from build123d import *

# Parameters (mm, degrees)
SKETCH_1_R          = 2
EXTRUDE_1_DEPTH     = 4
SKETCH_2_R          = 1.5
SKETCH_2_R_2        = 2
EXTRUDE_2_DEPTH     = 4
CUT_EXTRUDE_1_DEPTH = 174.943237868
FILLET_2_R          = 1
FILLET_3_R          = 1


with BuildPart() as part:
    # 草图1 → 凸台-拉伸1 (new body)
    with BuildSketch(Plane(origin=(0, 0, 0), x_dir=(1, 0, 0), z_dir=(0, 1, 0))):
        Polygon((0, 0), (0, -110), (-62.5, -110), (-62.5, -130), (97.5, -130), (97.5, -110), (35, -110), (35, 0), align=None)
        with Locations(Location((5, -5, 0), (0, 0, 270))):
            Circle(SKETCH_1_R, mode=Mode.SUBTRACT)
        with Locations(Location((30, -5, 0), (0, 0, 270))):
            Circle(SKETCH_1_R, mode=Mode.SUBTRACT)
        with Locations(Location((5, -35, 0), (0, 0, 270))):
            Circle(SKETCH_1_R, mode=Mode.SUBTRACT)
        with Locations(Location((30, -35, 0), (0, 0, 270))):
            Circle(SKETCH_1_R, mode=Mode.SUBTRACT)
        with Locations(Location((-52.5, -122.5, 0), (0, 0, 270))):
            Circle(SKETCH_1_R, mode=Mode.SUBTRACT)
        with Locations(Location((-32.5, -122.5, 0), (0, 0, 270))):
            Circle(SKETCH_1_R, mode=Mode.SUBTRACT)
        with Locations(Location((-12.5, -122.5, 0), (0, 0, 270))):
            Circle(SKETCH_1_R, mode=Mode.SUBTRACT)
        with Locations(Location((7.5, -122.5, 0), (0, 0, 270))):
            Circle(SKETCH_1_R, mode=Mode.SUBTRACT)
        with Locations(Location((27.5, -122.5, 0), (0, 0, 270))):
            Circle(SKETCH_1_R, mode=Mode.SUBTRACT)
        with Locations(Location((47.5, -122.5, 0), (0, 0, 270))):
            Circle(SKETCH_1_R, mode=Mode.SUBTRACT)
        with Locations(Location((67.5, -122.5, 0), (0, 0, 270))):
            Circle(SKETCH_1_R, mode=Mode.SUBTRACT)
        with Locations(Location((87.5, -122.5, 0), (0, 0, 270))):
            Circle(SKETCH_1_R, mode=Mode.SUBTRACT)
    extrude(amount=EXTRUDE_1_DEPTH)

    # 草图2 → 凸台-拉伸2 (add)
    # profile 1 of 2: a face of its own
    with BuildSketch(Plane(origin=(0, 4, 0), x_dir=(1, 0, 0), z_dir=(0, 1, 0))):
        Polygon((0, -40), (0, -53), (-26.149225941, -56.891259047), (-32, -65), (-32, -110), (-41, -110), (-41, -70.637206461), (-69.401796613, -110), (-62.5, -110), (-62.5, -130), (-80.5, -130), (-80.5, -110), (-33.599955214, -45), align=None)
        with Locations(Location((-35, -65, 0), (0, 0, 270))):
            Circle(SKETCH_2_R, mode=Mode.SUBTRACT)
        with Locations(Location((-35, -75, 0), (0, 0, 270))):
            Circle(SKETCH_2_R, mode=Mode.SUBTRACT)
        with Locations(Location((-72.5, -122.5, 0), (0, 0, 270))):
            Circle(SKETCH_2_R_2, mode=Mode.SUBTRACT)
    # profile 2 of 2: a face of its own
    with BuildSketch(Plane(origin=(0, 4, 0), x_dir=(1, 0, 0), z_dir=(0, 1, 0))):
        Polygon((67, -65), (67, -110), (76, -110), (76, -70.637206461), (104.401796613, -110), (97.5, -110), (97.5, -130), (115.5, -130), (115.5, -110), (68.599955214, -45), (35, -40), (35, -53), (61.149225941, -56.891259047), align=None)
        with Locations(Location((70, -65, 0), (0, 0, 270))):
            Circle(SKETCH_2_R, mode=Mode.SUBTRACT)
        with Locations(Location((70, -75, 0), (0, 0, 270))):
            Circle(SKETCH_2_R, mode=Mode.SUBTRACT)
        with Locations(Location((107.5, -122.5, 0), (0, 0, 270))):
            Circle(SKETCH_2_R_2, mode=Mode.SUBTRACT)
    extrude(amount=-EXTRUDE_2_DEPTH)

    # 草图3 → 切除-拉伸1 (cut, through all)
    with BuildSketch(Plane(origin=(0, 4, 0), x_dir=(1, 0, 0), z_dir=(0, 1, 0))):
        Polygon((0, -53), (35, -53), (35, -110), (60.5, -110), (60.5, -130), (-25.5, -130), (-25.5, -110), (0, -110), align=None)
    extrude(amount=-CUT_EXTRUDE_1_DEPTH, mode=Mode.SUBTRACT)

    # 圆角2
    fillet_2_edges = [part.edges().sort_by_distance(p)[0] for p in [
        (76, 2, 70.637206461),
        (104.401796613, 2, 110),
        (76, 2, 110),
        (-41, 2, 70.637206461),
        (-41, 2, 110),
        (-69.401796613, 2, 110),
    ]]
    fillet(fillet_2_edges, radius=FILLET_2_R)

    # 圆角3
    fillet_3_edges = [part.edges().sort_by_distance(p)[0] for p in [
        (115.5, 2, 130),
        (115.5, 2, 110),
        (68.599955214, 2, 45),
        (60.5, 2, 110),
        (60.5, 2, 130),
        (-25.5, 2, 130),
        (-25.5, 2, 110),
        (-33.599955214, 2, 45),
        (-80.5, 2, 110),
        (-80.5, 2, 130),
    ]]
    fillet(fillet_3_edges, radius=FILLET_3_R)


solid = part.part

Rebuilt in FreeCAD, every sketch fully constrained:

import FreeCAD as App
import Part
import Sketcher
from FreeCAD import Vector


def edges_at(feature, points):
    """Names of the edges that pass closest to the given points."""
    edges = feature.Shape.Edges
    near = lambda p: min(range(len(edges)), key=lambda i: edges[i].distToShape(Part.Vertex(*p))[0])
    return sorted({f"Edge{near(p) + 1}" for p in points})

doc = App.newDocument("Part")
params = doc.addObject("Spreadsheet::Sheet", "Params")
for row, (alias, value) in enumerate([
    ("sketch1_diameter", "4 mm"),
    ("sketch1_width", "160 mm"),
    ("sketch1_width2", "35 mm"),
    ("sketch1_height", "110 mm"),
    ("sketch1_height2", "20 mm"),
    ("pad1_length", "4 mm"),
    ("sketch2_diameter", "4 mm"),
    ("sketch2_diameter2", "3 mm"),
    ("sketch2_width", "18 mm"),
    ("sketch2_width2", "9 mm"),
    ("sketch2_height", "13 mm"),
    ("pad2_length", "4 mm"),
    ("sketch3_width", "35 mm"),
    ("sketch3_width2", "86 mm"),
    ("sketch3_height", "57 mm"),
    ("sketch3_height2", "20 mm"),
    ("fillet_radius", "1 mm"),
    ("fillet2_radius", "1 mm"),
], start=1):
    params.set(f"A{row}", alias)
    params.set(f"B{row}", "=" + value)
    params.setAlias(f"B{row}", alias)

body = doc.addObject("PartDesign::Body", "Body")

# Sketch on XZ plane
sketch1 = body.newObject("Sketcher::SketchObject", "Sketch")
sketch1.AttachmentSupport = (doc.getObject("XZ_Plane"), [""])
sketch1.MapMode = "FlatFace"
sketch1.addGeometry([
    Part.LineSegment(Vector(0, 0, 0), Vector(0, 110, 0)),  # 0
    Part.LineSegment(Vector(0, 110, 0), Vector(-62.5, 110, 0)),  # 1
    Part.LineSegment(Vector(-62.5, 110, 0), Vector(-62.5, 130, 0)),  # 2
    Part.LineSegment(Vector(-62.5, 130, 0), Vector(97.5, 130, 0)),  # 3
    Part.LineSegment(Vector(97.5, 130, 0), Vector(97.5, 110, 0)),  # 4
    Part.LineSegment(Vector(97.5, 110, 0), Vector(35, 110, 0)),  # 5
    Part.LineSegment(Vector(35, 110, 0), Vector(35, 0, 0)),  # 6
    Part.LineSegment(Vector(35, 0, 0), Vector(0, 0, 0)),  # 7
    Part.Circle(Vector(-52.5, 122.5, 0), Vector(0, 0, 1), 2),  # 8
    Part.Circle(Vector(-32.5, 122.5, 0), Vector(0, 0, 1), 2),  # 9
    Part.Circle(Vector(-12.5, 122.5, 0), Vector(0, 0, 1), 2),  # 10
    Part.Circle(Vector(7.5, 122.5, 0), Vector(0, 0, 1), 2),  # 11
    Part.Circle(Vector(27.5, 122.5, 0), Vector(0, 0, 1), 2),  # 12
    Part.Circle(Vector(47.5, 122.5, 0), Vector(0, 0, 1), 2),  # 13
    Part.Circle(Vector(67.5, 122.5, 0), Vector(0, 0, 1), 2),  # 14
    Part.Circle(Vector(87.5, 122.5, 0), Vector(0, 0, 1), 2),  # 15
    Part.Circle(Vector(5, 35, 0), Vector(0, 0, 1), 2),  # 16
    Part.Circle(Vector(5, 5, 0), Vector(0, 0, 1), 2),  # 17
    Part.Circle(Vector(30, 35, 0), Vector(0, 0, 1), 2),  # 18
    Part.Circle(Vector(30, 5, 0), Vector(0, 0, 1), 2),  # 19
], False)
sketch1.addConstraint([
    Sketcher.Constraint("Coincident", 0, 2, 1, 1),
    Sketcher.Constraint("Coincident", 1, 2, 2, 1),
    Sketcher.Constraint("Coincident", 2, 2, 3, 1),
    Sketcher.Constraint("Coincident", 3, 2, 4, 1),
    Sketcher.Constraint("Coincident", 4, 2, 5, 1),
    Sketcher.Constraint("Coincident", 5, 2, 6, 1),
    Sketcher.Constraint("Coincident", 6, 2, 7, 1),
    Sketcher.Constraint("Coincident", 7, 2, 0, 1),
    Sketcher.Constraint("Vertical", 0),
    Sketcher.Constraint("Horizontal", 1),
    Sketcher.Constraint("Vertical", 2),
    Sketcher.Constraint("Horizontal", 3),
    Sketcher.Constraint("Vertical", 4),
    Sketcher.Constraint("Horizontal", 5),
    Sketcher.Constraint("Vertical", 6),
    Sketcher.Constraint("Horizontal", 7),
    Sketcher.Constraint("Coincident", 7, 2, -1, 1),
    Sketcher.Constraint("Equal", 8, 9),
    Sketcher.Constraint("Equal", 9, 10),
    Sketcher.Constraint("Equal", 10, 11),
    Sketcher.Constraint("Equal", 11, 12),
    Sketcher.Constraint("Equal", 12, 13),
    Sketcher.Constraint("Equal", 13, 14),
    Sketcher.Constraint("Equal", 14, 15),
    Sketcher.Constraint("Equal", 15, 16),
    Sketcher.Constraint("Equal", 16, 17),
    Sketcher.Constraint("Equal", 17, 18),
    Sketcher.Constraint("Equal", 18, 19),
    Sketcher.Constraint("Horizontal", 8, 3, 9, 3),
    Sketcher.Constraint("Horizontal", 9, 3, 10, 3),
    Sketcher.Constraint("Horizontal", 10, 3, 11, 3),
    Sketcher.Constraint("Horizontal", 11, 3, 12, 3),
    Sketcher.Constraint("Horizontal", 12, 3, 13, 3),
    Sketcher.Constraint("Horizontal", 13, 3, 14, 3),
    Sketcher.Constraint("Horizontal", 14, 3, 15, 3),
    Sketcher.Constraint("Horizontal", 16, 3, 18, 3),
    Sketcher.Constraint("Horizontal", 17, 3, 19, 3),
    Sketcher.Constraint("Horizontal", 1, 2, 4, 2),
    Sketcher.Constraint("Vertical", 16, 3, 17, 3),
    Sketcher.Constraint("Vertical", 18, 3, 19, 3),
    Sketcher.Constraint("Equal", 1, 5),
    Sketcher.Constraint("Diameter", 8, 4.0),
    Sketcher.Constraint("DistanceX", 3, 1, 3, 2, 160.0),
    Sketcher.Constraint("DistanceX", 7, 2, 7, 1, 35.0),
    Sketcher.Constraint("DistanceY", 0, 1, 0, 2, 110.0),
    Sketcher.Constraint("DistanceY", 2, 1, 2, 2, 20.0),
    Sketcher.Constraint("DistanceX", -1, 1, 16, 3, 5.0),
    Sketcher.Constraint("DistanceY", -1, 1, 16, 3, 35.0),
    Sketcher.Constraint("DistanceY", -1, 1, 17, 3, 5.0),
    Sketcher.Constraint("DistanceX", -1, 1, 18, 3, 30.0),
    Sketcher.Constraint("DistanceX", 8, 3, 9, 3, 20.0),
    Sketcher.Constraint("DistanceX", 9, 3, 10, 3, 20.0),
    Sketcher.Constraint("DistanceX", 10, 3, 11, 3, 20.0),
    Sketcher.Constraint("DistanceX", 11, 3, 12, 3, 20.0),
    Sketcher.Constraint("DistanceX", 12, 3, 13, 3, 20.0),
    Sketcher.Constraint("DistanceX", 13, 3, 14, 3, 20.0),
    Sketcher.Constraint("DistanceX", 14, 3, 15, 3, 20.0),
    Sketcher.Constraint("DistanceX", 1, 2, 8, 3, 10.0),
    Sketcher.Constraint("DistanceY", -1, 1, 8, 3, 122.5),
])
sketch1.setExpression("Constraints[41]", "Params.sketch1_diameter")
sketch1.setExpression("Constraints[42]", "Params.sketch1_width")
sketch1.setExpression("Constraints[43]", "Params.sketch1_width2")
sketch1.setExpression("Constraints[44]", "Params.sketch1_height")
sketch1.setExpression("Constraints[45]", "Params.sketch1_height2")
pad1 = body.newObject("PartDesign::Pad", "Pad")
pad1.Profile = sketch1
pad1.setExpression("Length", "Params.pad1_length")
pad1.Reversed = True

# Sketch on XZ plane
sketch2 = body.newObject("Sketcher::SketchObject", "Sketch001")
sketch2.AttachmentSupport = (doc.getObject("XZ_Plane"), [""])
sketch2.MapMode = "FlatFace"
sketch2.AttachmentOffset = App.Placement(Vector(0, 0, -4), App.Rotation())
sketch2.addGeometry([
    Part.LineSegment(Vector(0, 53, 0), Vector(0, 40, 0)),  # 0
    Part.LineSegment(Vector(0, 40, 0), Vector(-33.6, 45, 0)),  # 1
    Part.LineSegment(Vector(-33.6, 45, 0), Vector(-80.5, 110, 0)),  # 2
    Part.LineSegment(Vector(-80.5, 110, 0), Vector(-80.5, 130, 0)),  # 3
    Part.LineSegment(Vector(-80.5, 130, 0), Vector(-62.5, 130, 0)),  # 4
    Part.LineSegment(Vector(-62.5, 130, 0), Vector(-62.5, 110, 0)),  # 5
    Part.LineSegment(Vector(-62.5, 110, 0), Vector(-69.4, 110, 0)),  # 6
    Part.LineSegment(Vector(-69.4, 110, 0), Vector(-41, 70.6, 0)),  # 7
    Part.LineSegment(Vector(-41, 70.6, 0), Vector(-41, 110, 0)),  # 8
    Part.LineSegment(Vector(-41, 110, 0), Vector(-32, 110, 0)),  # 9
    Part.LineSegment(Vector(-32, 110, 0), Vector(-32, 65, 0)),  # 10
    Part.LineSegment(Vector(-32, 65, 0), Vector(-26.1, 56.9, 0)),  # 11
    Part.LineSegment(Vector(-26.1, 56.9, 0), Vector(0, 53, 0)),  # 12
    Part.Circle(Vector(-72.5, 122.5, 0), Vector(0, 0, 1), 2),  # 13
    Part.Circle(Vector(-35, 75, 0), Vector(0, 0, 1), 1.5),  # 14
    Part.Circle(Vector(-35, 65, 0), Vector(0, 0, 1), 1.5),  # 15
    Part.LineSegment(Vector(67, 65, 0), Vector(67, 110, 0)),  # 16
    Part.LineSegment(Vector(67, 110, 0), Vector(76, 110, 0)),  # 17
    Part.LineSegment(Vector(76, 110, 0), Vector(76, 70.6, 0)),  # 18
    Part.LineSegment(Vector(76, 70.6, 0), Vector(104.4, 110, 0)),  # 19
    Part.LineSegment(Vector(104.4, 110, 0), Vector(97.5, 110, 0)),  # 20
    Part.LineSegment(Vector(97.5, 110, 0), Vector(97.5, 130, 0)),  # 21
    Part.LineSegment(Vector(97.5, 130, 0), Vector(115.5, 130, 0)),  # 22
    Part.LineSegment(Vector(115.5, 130, 0), Vector(115.5, 110, 0)),  # 23
    Part.LineSegment(Vector(115.5, 110, 0), Vector(68.6, 45, 0)),  # 24
    Part.LineSegment(Vector(68.6, 45, 0), Vector(35, 40, 0)),  # 25
    Part.LineSegment(Vector(35, 40, 0), Vector(35, 53, 0)),  # 26
    Part.LineSegment(Vector(35, 53, 0), Vector(61.1, 56.9, 0)),  # 27
    Part.LineSegment(Vector(61.1, 56.9, 0), Vector(67, 65, 0)),  # 28
    Part.Circle(Vector(107.5, 122.5, 0), Vector(0, 0, 1), 2),  # 29
    Part.Circle(Vector(70, 75, 0), Vector(0, 0, 1), 1.5),  # 30
    Part.Circle(Vector(70, 65, 0), Vector(0, 0, 1), 1.5),  # 31
], False)
sketch2.addConstraint([
    Sketcher.Constraint("Coincident", 0, 2, 1, 1),
    Sketcher.Constraint("Coincident", 1, 2, 2, 1),
    Sketcher.Constraint("Coincident", 2, 2, 3, 1),
    Sketcher.Constraint("Coincident", 3, 2, 4, 1),
    Sketcher.Constraint("Coincident", 4, 2, 5, 1),
    Sketcher.Constraint("Coincident", 5, 2, 6, 1),
    Sketcher.Constraint("Coincident", 6, 2, 7, 1),
    Sketcher.Constraint("Coincident", 7, 2, 8, 1),
    Sketcher.Constraint("Coincident", 8, 2, 9, 1),
    Sketcher.Constraint("Coincident", 9, 2, 10, 1),
    Sketcher.Constraint("Coincident", 10, 2, 11, 1),
    Sketcher.Constraint("Coincident", 11, 2, 12, 1),
    Sketcher.Constraint("Coincident", 12, 2, 0, 1),
    Sketcher.Constraint("Coincident", 16, 2, 17, 1),
    Sketcher.Constraint("Coincident", 17, 2, 18, 1),
    Sketcher.Constraint("Coincident", 18, 2, 19, 1),
    Sketcher.Constraint("Coincident", 19, 2, 20, 1),
    Sketcher.Constraint("Coincident", 20, 2, 21, 1),
    Sketcher.Constraint("Coincident", 21, 2, 22, 1),
    Sketcher.Constraint("Coincident", 22, 2, 23, 1),
    Sketcher.Constraint("Coincident", 23, 2, 24, 1),
    Sketcher.Constraint("Coincident", 24, 2, 25, 1),
    Sketcher.Constraint("Coincident", 25, 2, 26, 1),
    Sketcher.Constraint("Coincident", 26, 2, 27, 1),
    Sketcher.Constraint("Coincident", 27, 2, 28, 1),
    Sketcher.Constraint("Coincident", 28, 2, 16, 1),
    Sketcher.Constraint("Vertical", 0),
    Sketcher.Constraint("Vertical", 3),
    Sketcher.Constraint("Horizontal", 4),
    Sketcher.Constraint("Vertical", 5),
    Sketcher.Constraint("Horizontal", 6),
    Sketcher.Constraint("Vertical", 8),
    Sketcher.Constraint("Horizontal", 9),
    Sketcher.Constraint("Vertical", 10),
    Sketcher.Constraint("Vertical", 16),
    Sketcher.Constraint("Horizontal", 17),
    Sketcher.Constraint("Vertical", 18),
    Sketcher.Constraint("Horizontal", 20),
    Sketcher.Constraint("Vertical", 21),
    Sketcher.Constraint("Horizontal", 22),
    Sketcher.Constraint("Vertical", 23),
    Sketcher.Constraint("Vertical", 26),
    Sketcher.Constraint("Equal", 14, 15),
    Sketcher.Constraint("Equal", 13, 29),
    Sketcher.Constraint("Equal", 15, 30),
    Sketcher.Constraint("Equal", 30, 31),
    Sketcher.Constraint("PointOnObject", 0, 2, -2),
    Sketcher.Constraint("Parallel", 2, 7),
    Sketcher.Constraint("Parallel", 7, 11),
    Sketcher.Constraint("Parallel", 1, 12),
    Sketcher.Constraint("Parallel", 19, 24),
    Sketcher.Constraint("Parallel", 25, 27),
    Sketcher.Constraint("Parallel", 24, 28),
    Sketcher.Constraint("Horizontal", 13, 3, 29, 3),
    Sketcher.Constraint("Horizontal", 14, 3, 30, 3),
    Sketcher.Constraint("Horizontal", 15, 3, 31, 3),
    Sketcher.Constraint("Horizontal", 2, 2, 5, 2),
    Sketcher.Constraint("Horizontal", 6, 2, 8, 2),
    Sketcher.Constraint("Horizontal", 31, 3, 10, 2),
    Sketcher.Constraint("Horizontal", 9, 2, 16, 2),
    Sketcher.Constraint("Horizontal", 7, 2, 18, 2),
    Sketcher.Constraint("Horizontal", 17, 2, 19, 2),
    Sketcher.Constraint("Horizontal", 4, 2, 21, 2),
    Sketcher.Constraint("Horizontal", 20, 2, 23, 2),
    Sketcher.Constraint("Horizontal", 1, 2, 24, 2),
    Sketcher.Constraint("Horizontal", 0, 2, 25, 2),
    Sketcher.Constraint("Horizontal", 12, 2, 26, 2),
    Sketcher.Constraint("Horizontal", 11, 2, 27, 2),
    Sketcher.Constraint("Horizontal", 10, 2, 28, 2),
    Sketcher.Constraint("Vertical", 14, 3, 15, 3),
    Sketcher.Constraint("Vertical", 30, 3, 31, 3),
    Sketcher.Constraint("Equal", 9, 17),
    Sketcher.Constraint("Equal", 6, 20),
    Sketcher.Constraint("Equal", 4, 22),
    Sketcher.Constraint("Equal", 7, 19),
    Sketcher.Constraint("Diameter", 13, 4.0),
    Sketcher.Constraint("Diameter", 14, 3.0),
    Sketcher.Constraint("DistanceX", 4, 1, 4, 2, 18.0),
    Sketcher.Constraint("DistanceX", 9, 1, 9, 2, 9.0),
    Sketcher.Constraint("DistanceY", 0, 2, 0, 1, 13.0),
    Sketcher.Constraint("DistanceY", 3, 1, 3, 2, 20.0),
    Sketcher.Constraint("DistanceY", 10, 2, 10, 1, 45.0),
    Sketcher.Constraint("DistanceX", 14, 3, -1, 1, 35.0),
    Sketcher.Constraint("DistanceY", -1, 1, 14, 3, 75.0),
    Sketcher.Constraint("DistanceY", -1, 1, 15, 3, 65.0),
    Sketcher.Constraint("DistanceX", -1, 1, 30, 3, 70.0),
    Sketcher.Constraint("DistanceY", -1, 1, 0, 2, 40.0),
    Sketcher.Constraint("DistanceY", -1, 1, 1, 2, 45.0),
    Sketcher.Constraint("DistanceX", 7, 2, -1, 1, 41.0),
    Sketcher.Constraint("DistanceX", -1, 1, 16, 2, 67.0),
    Sketcher.Constraint("DistanceX", 13, 3, 29, 3, 180.0),
    Sketcher.Constraint("DistanceX", 2, 2, 13, 3, 8.0),
    Sketcher.Constraint("DistanceX", 20, 2, 29, 3, 10.0),
    Sketcher.Constraint("DistanceY", -1, 1, 13, 3, 122.5),
    Sketcher.Constraint("Distance", 2, 80.153691),
    Sketcher.Constraint("DistanceX", 6, 2, 6, 1, 6.901797),
])
sketch2.setExpression("Constraints[75]", "Params.sketch2_diameter")
sketch2.setExpression("Constraints[76]", "Params.sketch2_diameter2")
sketch2.setExpression("Constraints[77]", "Params.sketch2_width")
sketch2.setExpression("Constraints[78]", "Params.sketch2_width2")
sketch2.setExpression("Constraints[79]", "Params.sketch2_height")
pad2 = body.newObject("PartDesign::Pad", "Pad001")
pad2.Profile = sketch2
pad2.setExpression("Length", "Params.pad2_length")

# Sketch on XZ plane
sketch3 = body.newObject("Sketcher::SketchObject", "Sketch002")
sketch3.AttachmentSupport = (doc.getObject("XZ_Plane"), [""])
sketch3.MapMode = "FlatFace"
sketch3.AttachmentOffset = App.Placement(Vector(0, 0, -4), App.Rotation())
sketch3.addGeometry([
    Part.LineSegment(Vector(35, 53, 0), Vector(0, 53, 0)),  # 0
    Part.LineSegment(Vector(0, 53, 0), Vector(0, 110, 0)),  # 1
    Part.LineSegment(Vector(0, 110, 0), Vector(-26, 110, 0)),  # 2
    Part.LineSegment(Vector(-26, 110, 0), Vector(-26, 130, 0)),  # 3
    Part.LineSegment(Vector(-26, 130, 0), Vector(60, 130, 0)),  # 4
    Part.LineSegment(Vector(60, 130, 0), Vector(60, 110, 0)),  # 5
    Part.LineSegment(Vector(60, 110, 0), Vector(35, 110, 0)),  # 6
    Part.LineSegment(Vector(35, 110, 0), Vector(35, 53, 0)),  # 7
], False)
sketch3.addConstraint([
    Sketcher.Constraint("Coincident", 0, 2, 1, 1),
    Sketcher.Constraint("Coincident", 1, 2, 2, 1),
    Sketcher.Constraint("Coincident", 2, 2, 3, 1),
    Sketcher.Constraint("Coincident", 3, 2, 4, 1),
    Sketcher.Constraint("Coincident", 4, 2, 5, 1),
    Sketcher.Constraint("Coincident", 5, 2, 6, 1),
    Sketcher.Constraint("Coincident", 6, 2, 7, 1),
    Sketcher.Constraint("Coincident", 7, 2, 0, 1),
    Sketcher.Constraint("Horizontal", 0),
    Sketcher.Constraint("Vertical", 1),
    Sketcher.Constraint("Horizontal", 2),
    Sketcher.Constraint("Vertical", 3),
    Sketcher.Constraint("Horizontal", 4),
    Sketcher.Constraint("Vertical", 5),
    Sketcher.Constraint("Horizontal", 6),
    Sketcher.Constraint("Vertical", 7),
    Sketcher.Constraint("PointOnObject", 0, 2, -2),
    Sketcher.Constraint("Horizontal", 2, 2, 5, 2),
    Sketcher.Constraint("Equal", 2, 6),
    Sketcher.Constraint("DistanceX", 0, 2, 0, 1, 35.0),
    Sketcher.Constraint("DistanceX", 4, 1, 4, 2, 86.0),
    Sketcher.Constraint("DistanceY", 1, 1, 1, 2, 57.0),
    Sketcher.Constraint("DistanceY", 3, 1, 3, 2, 20.0),
    Sketcher.Constraint("DistanceY", -1, 1, 0, 2, 53.0),
])
sketch3.setExpression("Constraints[19]", "Params.sketch3_width")
sketch3.setExpression("Constraints[20]", "Params.sketch3_width2")
sketch3.setExpression("Constraints[21]", "Params.sketch3_height")
sketch3.setExpression("Constraints[22]", "Params.sketch3_height2")
pocket1 = body.newObject("PartDesign::Pocket", "Pocket")
pocket1.Profile = sketch3
pocket1.Type = "ThroughAll"
pocket1.Reversed = True
doc.recompute()

fillet = body.newObject("PartDesign::Fillet", "Fillet")
fillet.Base = (pocket1, edges_at(pocket1, [
    (76, 2, 70.637),
    (104.402, 2, 110),
    (76, 2, 110),
    (-41, 2, 70.637),
    (-41, 2, 110),
    (-69.402, 2, 110),
]))
fillet.setExpression("Radius", "Params.fillet_radius")
doc.recompute()

fillet2 = body.newObject("PartDesign::Fillet", "Fillet001")
fillet2.Base = (fillet, edges_at(fillet, [
    (115.5, 2, 130),
    (115.5, 2, 110),
    (68.6, 2, 45),
    (60.5, 2, 110),
    (60.5, 2, 130),
    (-25.5, 2, 130),
    (-25.5, 2, 110),
    (-33.6, 2, 45),
    (-80.5, 2, 110),
    (-80.5, 2, 130),
]))
fillet2.setExpression("Radius", "Params.fillet2_radius")

doc.recompute()
